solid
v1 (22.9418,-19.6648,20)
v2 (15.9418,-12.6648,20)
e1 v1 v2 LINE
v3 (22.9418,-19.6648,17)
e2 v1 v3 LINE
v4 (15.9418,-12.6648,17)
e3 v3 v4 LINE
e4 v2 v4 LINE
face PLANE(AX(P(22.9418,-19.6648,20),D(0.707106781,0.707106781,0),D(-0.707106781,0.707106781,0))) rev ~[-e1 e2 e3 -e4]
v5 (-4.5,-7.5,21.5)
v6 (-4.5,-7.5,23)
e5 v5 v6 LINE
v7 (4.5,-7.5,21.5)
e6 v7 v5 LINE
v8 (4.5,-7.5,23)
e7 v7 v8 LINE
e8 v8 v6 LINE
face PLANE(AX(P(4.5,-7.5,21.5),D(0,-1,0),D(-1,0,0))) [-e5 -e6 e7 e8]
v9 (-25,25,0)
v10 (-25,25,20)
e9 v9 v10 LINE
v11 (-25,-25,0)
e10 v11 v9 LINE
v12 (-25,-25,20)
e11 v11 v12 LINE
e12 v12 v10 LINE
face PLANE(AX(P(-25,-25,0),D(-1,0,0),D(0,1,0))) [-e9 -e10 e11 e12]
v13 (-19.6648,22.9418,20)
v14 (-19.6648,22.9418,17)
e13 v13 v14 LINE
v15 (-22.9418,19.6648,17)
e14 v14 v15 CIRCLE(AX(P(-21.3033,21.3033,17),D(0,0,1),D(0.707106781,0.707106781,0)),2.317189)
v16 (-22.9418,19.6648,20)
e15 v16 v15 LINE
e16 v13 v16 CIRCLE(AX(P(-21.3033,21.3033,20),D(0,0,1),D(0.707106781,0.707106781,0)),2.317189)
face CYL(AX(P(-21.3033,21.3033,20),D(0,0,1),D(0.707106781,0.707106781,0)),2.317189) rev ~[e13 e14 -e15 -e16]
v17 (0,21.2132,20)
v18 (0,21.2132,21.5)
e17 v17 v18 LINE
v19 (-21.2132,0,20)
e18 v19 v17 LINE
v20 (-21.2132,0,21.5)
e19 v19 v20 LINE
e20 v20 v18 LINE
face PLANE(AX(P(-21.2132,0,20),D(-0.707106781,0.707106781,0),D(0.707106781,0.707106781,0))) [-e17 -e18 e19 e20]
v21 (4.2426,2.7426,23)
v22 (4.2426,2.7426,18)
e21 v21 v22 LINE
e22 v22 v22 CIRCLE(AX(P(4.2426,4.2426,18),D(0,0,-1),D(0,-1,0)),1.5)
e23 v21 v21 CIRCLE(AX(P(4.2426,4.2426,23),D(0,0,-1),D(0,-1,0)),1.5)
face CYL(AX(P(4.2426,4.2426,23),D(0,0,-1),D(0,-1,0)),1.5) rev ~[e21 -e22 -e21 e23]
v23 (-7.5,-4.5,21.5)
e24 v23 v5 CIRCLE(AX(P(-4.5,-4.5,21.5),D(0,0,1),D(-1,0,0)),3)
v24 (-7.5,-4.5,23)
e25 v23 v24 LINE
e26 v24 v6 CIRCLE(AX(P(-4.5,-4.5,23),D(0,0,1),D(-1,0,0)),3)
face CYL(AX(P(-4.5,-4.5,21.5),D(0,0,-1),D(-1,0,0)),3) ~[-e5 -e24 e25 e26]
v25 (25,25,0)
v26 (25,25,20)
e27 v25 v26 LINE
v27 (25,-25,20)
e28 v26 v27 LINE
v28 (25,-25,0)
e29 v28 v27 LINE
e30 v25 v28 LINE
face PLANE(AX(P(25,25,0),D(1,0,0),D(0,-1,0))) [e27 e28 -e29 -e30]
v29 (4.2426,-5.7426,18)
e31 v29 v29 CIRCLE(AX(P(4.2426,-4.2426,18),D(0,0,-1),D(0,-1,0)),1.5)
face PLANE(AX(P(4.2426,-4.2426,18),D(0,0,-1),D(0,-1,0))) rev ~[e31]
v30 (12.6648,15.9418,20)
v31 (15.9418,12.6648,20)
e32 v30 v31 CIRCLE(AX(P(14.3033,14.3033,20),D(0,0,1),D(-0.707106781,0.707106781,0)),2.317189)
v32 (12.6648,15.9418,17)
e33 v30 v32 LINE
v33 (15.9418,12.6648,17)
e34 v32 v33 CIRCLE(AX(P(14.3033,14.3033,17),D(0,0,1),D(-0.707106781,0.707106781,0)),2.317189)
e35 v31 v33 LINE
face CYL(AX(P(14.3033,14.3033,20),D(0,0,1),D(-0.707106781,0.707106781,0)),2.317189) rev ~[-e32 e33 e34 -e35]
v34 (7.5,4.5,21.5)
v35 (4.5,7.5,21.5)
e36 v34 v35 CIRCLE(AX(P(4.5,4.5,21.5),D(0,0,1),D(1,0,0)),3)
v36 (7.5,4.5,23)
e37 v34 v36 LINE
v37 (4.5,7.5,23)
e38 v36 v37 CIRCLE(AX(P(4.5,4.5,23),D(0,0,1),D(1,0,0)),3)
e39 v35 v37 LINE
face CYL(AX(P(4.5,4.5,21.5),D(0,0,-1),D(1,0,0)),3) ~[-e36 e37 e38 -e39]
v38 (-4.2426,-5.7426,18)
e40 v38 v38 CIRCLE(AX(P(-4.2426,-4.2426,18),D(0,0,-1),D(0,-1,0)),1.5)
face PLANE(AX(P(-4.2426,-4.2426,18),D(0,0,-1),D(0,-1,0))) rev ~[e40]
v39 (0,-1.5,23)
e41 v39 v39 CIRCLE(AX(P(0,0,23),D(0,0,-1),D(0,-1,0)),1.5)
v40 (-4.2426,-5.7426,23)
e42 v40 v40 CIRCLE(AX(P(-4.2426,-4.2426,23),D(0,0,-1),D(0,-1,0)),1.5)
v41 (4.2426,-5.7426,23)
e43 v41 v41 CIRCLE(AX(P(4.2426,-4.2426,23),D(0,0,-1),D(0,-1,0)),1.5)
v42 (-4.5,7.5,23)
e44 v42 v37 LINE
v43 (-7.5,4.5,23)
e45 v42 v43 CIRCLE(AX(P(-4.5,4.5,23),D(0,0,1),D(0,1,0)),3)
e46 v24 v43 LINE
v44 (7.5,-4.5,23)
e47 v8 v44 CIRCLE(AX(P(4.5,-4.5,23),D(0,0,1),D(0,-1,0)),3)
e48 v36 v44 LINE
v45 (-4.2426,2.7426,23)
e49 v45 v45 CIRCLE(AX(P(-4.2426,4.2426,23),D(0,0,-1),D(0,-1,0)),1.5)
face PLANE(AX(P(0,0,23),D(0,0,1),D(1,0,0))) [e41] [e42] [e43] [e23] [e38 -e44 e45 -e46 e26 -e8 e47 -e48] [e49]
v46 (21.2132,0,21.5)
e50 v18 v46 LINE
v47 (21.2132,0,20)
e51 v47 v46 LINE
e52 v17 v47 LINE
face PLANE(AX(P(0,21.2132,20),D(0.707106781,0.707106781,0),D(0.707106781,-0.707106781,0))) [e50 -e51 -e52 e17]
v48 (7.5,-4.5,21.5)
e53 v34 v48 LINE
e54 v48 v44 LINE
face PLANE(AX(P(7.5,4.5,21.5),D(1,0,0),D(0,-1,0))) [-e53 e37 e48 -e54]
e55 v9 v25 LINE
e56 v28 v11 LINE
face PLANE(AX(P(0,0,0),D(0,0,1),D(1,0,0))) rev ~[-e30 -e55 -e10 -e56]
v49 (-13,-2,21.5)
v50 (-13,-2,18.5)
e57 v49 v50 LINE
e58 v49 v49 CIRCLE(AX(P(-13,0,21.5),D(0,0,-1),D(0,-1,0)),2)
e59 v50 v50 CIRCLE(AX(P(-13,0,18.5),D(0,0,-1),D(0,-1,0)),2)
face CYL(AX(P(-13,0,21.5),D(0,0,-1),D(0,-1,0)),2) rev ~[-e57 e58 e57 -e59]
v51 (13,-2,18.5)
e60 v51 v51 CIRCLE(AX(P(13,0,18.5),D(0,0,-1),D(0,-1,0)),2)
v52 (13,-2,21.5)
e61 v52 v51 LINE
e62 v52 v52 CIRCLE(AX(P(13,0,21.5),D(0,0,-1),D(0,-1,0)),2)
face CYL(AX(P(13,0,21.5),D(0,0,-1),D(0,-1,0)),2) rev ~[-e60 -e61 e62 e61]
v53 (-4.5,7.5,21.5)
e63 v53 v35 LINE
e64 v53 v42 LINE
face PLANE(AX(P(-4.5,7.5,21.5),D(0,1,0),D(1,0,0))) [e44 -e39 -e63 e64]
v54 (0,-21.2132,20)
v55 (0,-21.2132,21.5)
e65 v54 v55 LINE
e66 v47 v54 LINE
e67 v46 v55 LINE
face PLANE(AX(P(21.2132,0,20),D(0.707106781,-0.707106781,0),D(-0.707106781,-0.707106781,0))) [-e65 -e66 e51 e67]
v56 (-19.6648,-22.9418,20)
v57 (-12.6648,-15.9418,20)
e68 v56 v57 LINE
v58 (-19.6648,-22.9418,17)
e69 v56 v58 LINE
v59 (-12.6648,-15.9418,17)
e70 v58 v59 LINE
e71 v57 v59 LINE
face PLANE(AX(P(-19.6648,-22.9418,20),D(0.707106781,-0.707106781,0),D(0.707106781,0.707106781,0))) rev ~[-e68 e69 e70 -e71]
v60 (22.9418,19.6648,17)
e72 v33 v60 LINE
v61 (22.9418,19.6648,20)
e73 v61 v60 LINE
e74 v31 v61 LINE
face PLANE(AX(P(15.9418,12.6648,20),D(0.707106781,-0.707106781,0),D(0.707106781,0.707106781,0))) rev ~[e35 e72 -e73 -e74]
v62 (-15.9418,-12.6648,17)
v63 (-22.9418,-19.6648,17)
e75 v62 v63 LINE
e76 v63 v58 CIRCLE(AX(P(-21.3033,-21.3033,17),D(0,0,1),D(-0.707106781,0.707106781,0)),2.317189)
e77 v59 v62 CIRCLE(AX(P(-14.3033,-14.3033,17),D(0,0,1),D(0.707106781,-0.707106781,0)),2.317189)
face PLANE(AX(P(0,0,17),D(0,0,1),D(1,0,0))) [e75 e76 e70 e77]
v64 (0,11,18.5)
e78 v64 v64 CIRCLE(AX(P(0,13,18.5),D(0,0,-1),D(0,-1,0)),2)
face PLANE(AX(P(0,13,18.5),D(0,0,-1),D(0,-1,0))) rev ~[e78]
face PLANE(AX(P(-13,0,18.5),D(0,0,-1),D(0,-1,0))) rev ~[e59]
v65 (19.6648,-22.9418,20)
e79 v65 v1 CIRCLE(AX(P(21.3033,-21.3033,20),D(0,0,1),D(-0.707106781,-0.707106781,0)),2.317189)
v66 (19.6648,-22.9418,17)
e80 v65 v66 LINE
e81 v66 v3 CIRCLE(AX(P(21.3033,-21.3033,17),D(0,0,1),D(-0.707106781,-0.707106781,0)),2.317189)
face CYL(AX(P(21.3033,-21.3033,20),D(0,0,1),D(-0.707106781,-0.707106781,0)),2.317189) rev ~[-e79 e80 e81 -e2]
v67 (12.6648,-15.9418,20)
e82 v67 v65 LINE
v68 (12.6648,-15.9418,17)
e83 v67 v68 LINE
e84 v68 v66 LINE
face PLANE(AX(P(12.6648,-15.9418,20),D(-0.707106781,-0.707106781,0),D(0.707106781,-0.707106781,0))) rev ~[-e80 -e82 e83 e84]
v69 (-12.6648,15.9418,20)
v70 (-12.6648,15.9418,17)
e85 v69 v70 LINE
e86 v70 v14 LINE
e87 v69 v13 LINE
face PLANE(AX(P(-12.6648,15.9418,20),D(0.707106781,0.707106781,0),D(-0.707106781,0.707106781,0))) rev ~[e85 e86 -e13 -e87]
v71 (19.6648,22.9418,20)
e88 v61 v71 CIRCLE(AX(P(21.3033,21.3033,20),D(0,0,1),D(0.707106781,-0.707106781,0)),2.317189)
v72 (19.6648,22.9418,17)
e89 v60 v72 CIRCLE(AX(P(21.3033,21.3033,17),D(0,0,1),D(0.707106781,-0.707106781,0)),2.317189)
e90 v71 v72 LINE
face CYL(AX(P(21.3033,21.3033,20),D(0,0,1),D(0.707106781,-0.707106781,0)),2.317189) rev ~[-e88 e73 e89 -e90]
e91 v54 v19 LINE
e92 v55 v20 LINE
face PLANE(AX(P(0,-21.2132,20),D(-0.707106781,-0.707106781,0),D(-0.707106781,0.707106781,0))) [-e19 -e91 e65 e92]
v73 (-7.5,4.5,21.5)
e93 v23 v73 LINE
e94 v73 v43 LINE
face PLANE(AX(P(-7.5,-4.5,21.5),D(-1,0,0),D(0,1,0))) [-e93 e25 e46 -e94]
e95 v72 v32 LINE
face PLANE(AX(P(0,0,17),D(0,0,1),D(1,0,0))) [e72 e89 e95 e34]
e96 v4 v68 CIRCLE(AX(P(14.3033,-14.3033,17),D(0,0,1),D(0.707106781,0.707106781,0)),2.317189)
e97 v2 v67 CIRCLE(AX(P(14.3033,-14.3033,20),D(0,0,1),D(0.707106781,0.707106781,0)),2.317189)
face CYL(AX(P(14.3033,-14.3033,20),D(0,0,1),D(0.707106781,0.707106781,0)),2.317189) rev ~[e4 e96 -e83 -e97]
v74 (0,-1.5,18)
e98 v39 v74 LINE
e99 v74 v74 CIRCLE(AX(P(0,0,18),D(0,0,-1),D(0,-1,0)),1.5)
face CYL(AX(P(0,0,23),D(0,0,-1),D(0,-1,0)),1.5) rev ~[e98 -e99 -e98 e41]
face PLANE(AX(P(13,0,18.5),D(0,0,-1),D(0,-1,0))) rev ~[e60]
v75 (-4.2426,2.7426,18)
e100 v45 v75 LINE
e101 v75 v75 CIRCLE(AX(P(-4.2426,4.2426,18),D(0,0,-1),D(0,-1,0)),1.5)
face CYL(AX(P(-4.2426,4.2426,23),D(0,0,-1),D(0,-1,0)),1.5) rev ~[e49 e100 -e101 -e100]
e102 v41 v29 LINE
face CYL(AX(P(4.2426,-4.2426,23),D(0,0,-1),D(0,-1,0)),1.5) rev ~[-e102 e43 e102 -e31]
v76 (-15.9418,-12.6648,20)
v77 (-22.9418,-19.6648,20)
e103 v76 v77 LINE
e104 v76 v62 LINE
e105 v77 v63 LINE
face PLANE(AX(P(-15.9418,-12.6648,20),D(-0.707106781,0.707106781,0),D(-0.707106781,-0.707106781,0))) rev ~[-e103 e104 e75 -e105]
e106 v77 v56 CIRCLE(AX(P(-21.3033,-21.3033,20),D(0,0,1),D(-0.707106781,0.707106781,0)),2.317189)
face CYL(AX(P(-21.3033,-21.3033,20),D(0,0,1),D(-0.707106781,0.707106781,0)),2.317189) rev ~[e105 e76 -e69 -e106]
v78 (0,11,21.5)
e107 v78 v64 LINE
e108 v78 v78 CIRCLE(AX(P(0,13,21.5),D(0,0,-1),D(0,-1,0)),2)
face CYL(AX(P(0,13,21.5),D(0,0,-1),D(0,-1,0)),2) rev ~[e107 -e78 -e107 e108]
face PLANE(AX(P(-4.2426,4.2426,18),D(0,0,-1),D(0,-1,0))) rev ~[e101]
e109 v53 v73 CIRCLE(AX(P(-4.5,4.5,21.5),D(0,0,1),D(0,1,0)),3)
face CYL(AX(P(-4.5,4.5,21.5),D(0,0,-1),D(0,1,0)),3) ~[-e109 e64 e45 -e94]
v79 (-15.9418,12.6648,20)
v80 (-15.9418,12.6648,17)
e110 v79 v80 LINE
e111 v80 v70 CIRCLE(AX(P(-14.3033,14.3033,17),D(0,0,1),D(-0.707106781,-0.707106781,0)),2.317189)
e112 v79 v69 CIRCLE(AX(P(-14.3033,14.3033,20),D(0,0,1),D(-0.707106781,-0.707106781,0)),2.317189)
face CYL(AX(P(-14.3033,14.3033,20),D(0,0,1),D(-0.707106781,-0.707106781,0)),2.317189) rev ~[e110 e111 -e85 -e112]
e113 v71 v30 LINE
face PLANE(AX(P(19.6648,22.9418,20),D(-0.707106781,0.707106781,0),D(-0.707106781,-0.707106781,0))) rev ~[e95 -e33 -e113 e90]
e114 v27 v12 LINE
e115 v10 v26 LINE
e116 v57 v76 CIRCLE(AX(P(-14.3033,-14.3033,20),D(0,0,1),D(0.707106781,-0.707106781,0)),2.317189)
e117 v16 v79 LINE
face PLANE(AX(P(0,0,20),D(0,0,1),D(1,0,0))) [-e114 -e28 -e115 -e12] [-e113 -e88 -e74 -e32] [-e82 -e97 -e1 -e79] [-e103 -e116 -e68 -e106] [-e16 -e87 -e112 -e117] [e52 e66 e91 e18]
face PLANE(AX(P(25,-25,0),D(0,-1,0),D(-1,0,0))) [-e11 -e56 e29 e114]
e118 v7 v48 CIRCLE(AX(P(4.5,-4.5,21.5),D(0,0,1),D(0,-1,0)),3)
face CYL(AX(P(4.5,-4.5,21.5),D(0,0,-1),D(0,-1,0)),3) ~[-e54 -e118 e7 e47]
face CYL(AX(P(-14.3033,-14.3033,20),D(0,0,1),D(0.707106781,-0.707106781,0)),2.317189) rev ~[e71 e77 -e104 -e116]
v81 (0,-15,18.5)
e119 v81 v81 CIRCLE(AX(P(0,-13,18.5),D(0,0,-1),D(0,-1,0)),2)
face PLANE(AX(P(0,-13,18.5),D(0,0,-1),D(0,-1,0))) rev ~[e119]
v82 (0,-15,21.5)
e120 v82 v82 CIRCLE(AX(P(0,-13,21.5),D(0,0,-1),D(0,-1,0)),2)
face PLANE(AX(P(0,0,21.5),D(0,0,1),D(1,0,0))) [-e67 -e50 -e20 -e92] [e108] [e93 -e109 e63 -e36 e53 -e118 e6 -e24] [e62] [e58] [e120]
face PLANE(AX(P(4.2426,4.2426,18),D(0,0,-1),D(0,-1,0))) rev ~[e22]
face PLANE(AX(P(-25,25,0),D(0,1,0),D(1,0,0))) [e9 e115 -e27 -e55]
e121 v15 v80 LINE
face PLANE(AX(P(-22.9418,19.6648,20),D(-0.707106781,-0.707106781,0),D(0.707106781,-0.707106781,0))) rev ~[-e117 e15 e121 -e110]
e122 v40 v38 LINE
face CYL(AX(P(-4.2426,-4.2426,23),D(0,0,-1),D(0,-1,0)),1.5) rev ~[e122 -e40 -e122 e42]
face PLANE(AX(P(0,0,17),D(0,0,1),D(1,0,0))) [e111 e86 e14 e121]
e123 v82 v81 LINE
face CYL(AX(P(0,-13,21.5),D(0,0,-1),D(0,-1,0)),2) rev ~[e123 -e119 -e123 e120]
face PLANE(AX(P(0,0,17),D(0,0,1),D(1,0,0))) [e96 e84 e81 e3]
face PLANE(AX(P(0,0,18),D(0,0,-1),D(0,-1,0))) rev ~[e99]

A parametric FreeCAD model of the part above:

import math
import FreeCAD as App
import Part
import Sketcher
Q = App.Units.Quantity


def add_polygon(sketch, points):
    """Adds a closed chain of lines whose ends are joined by coincident constraints."""
    first, n = sketch.GeometryCount, len(points)
    for a, b in zip(points, points[1:] + points[:1]):
        sketch.addGeometry(Part.LineSegment(App.Vector(*a, 0), App.Vector(*b, 0)), False)
    for i in range(n):
        sketch.addConstraint(Sketcher.Constraint("Coincident", first + i, 2, first + (i + 1) % n, 1))

doc = App.newDocument("Part")
body = doc.addObject("PartDesign::Body", "Body")

# Sketch on XY plane
sketch1 = body.newObject("Sketcher::SketchObject", "Sketch")
sketch1.AttachmentSupport = (doc.getObject("XY_Plane"), [""])
sketch1.MapMode = "FlatFace"
add_polygon(sketch1, [(25, 25), (-25, 25), (-25, -25), (25, -25)])  # lines 0-3
sketch1.addConstraint([
    Sketcher.Constraint("Horizontal", 0),
    Sketcher.Constraint("Vertical", 1),
    Sketcher.Constraint("Horizontal", 2),
    Sketcher.Constraint("Vertical", 3),
    Sketcher.Constraint("Symmetric", 0, 2, 2, 2, -1, 1),
    Sketcher.Constraint("Equal", 2, 1),
    Sketcher.Constraint("DistanceX", 0, 2, 0, 1, Q("50 mm")),
])
pad1 = body.newObject("PartDesign::Pad", "Pad")
pad1.Profile = sketch1
pad1.Length = 20

# Sketch on XY plane
sketch2 = body.newObject("Sketcher::SketchObject", "Sketch001")
sketch2.AttachmentSupport = (doc.getObject("XY_Plane"), [""])
sketch2.MapMode = "FlatFace"
sketch2.AttachmentOffset = App.Placement(App.Vector(0, 0, 20), App.Rotation())
add_polygon(sketch2, [(0, -21), (21, 0), (0, 21), (-21, 0)])  # lines 0-3
sketch2.addConstraint([
    Sketcher.Constraint("Symmetric", 0, 2, 2, 2, -1, 1),
    Sketcher.Constraint("Symmetric", 1, 2, 3, 2, -1, 1),
    Sketcher.Constraint("PointOnObject", 0, 2, -1),
    Sketcher.Constraint("PointOnObject", 1, 2, -2),
    Sketcher.Constraint("Perpendicular", 0, 1),
    Sketcher.Constraint("Distance", 0, Q("30 mm")),
])
pad2 = body.newObject("PartDesign::Pad", "Pad001")
pad2.Profile = sketch2
pad2.Length = 1.5

# Sketch on XY plane
sketch3 = body.newObject("Sketcher::SketchObject", "Sketch002")
sketch3.AttachmentSupport = (doc.getObject("XY_Plane"), [""])
sketch3.MapMode = "FlatFace"
sketch3.AttachmentOffset = App.Placement(App.Vector(0, 0, 21.5), App.Rotation())
sketch3.addGeometry([
    Part.Circle(App.Vector(-13, 0, 0), App.Vector(0, 0, 1), 2),
    Part.Circle(App.Vector(0, -13, 0), App.Vector(0, 0, 1), 2),
    Part.Circle(App.Vector(0, 13, 0), App.Vector(0, 0, 1), 2),
    Part.Circle(App.Vector(13, 0, 0), App.Vector(0, 0, 1), 2),
], False)
sketch3.addConstraint([
    Sketcher.Constraint("Equal", 0, 1),
    Sketcher.Constraint("Equal", 1, 2),
    Sketcher.Constraint("Equal", 2, 3),
    Sketcher.Constraint("Symmetric", 1, 3, 2, 3, -1, 1),
    Sketcher.Constraint("Symmetric", 0, 3, 3, 3, -1, 1),
    Sketcher.Constraint("PointOnObject", 0, 3, -1),
    Sketcher.Constraint("PointOnObject", 1, 3, -2),
    Sketcher.Constraint("Diameter", 0, Q("4 mm")),
    Sketcher.Constraint("DistanceX", 0, 3, -1, 1, Q("13 mm")),
    Sketcher.Constraint("DistanceY", 1, 3, -1, 1, Q("13 mm")),
])
doc.recompute()
hole = body.newObject("PartDesign::Hole", "Hole")
hole.Profile = sketch3
hole.ThreadType = "None"
hole.Diameter = 4
hole.DepthType = "Dimension"
hole.Depth = 3
hole.DrillPoint = "Flat"

# Sketch on XY plane
sketch4 = body.newObject("Sketcher::SketchObject", "Sketch003")
sketch4.AttachmentSupport = (doc.getObject("XY_Plane"), [""])
sketch4.MapMode = "FlatFace"
sketch4.AttachmentOffset = App.Placement(App.Vector(0, 0, 21.5), App.Rotation())
sketch4.addGeometry([
    Part.LineSegment(App.Vector(-4.5, -7.5, 0), App.Vector(4.5, -7.5, 0)),  # 0
    Part.ArcOfCircle(Part.Circle(App.Vector(4.5, -4.5, 0), App.Vector(0, 0, 1), 3), math.radians(-90), math.radians(0)),  # 1
    Part.LineSegment(App.Vector(7.5, -4.5, 0), App.Vector(7.5, 4.5, 0)),  # 2
    Part.ArcOfCircle(Part.Circle(App.Vector(4.5, 4.5, 0), App.Vector(0, 0, 1), 3), math.radians(0), math.radians(90)),  # 3
    Part.LineSegment(App.Vector(4.5, 7.5, 0), App.Vector(-4.5, 7.5, 0)),  # 4
    Part.ArcOfCircle(Part.Circle(App.Vector(-4.5, 4.5, 0), App.Vector(0, 0, 1), 3), math.radians(90), math.radians(180)),  # 5
    Part.LineSegment(App.Vector(-7.5, 4.5, 0), App.Vector(-7.5, -4.5, 0)),  # 6
    Part.ArcOfCircle(Part.Circle(App.Vector(-4.5, -4.5, 0), App.Vector(0, 0, 1), 3), math.radians(180), math.radians(270)),  # 7
], False)
sketch4.addConstraint([
    Sketcher.Constraint("Tangent", 0, 2, 1, 1),
    Sketcher.Constraint("Tangent", 1, 2, 2, 1),
    Sketcher.Constraint("Tangent", 2, 2, 3, 1),
    Sketcher.Constraint("Tangent", 3, 2, 4, 1),
    Sketcher.Constraint("Tangent", 4, 2, 5, 1),
    Sketcher.Constraint("Tangent", 5, 2, 6, 1),
    Sketcher.Constraint("Tangent", 6, 2, 7, 1),
    Sketcher.Constraint("Tangent", 7, 2, 0, 1),
    Sketcher.Constraint("Horizontal", 0),
    Sketcher.Constraint("Vertical", 2),
    Sketcher.Constraint("Horizontal", 4),
    Sketcher.Constraint("Vertical", 6),
    Sketcher.Constraint("Equal", 1, 3),
    Sketcher.Constraint("Equal", 3, 5),
    Sketcher.Constraint("Equal", 5, 7),
    Sketcher.Constraint("Symmetric", 1, 3, 5, 3, -1, 1),
    Sketcher.Constraint("Equal", 4, 2),
    Sketcher.Constraint("Radius", 1, Q("3 mm")),
    Sketcher.Constraint("DistanceX", 0, 1, 0, 2, Q("9 mm")),
])
pad3 = body.newObject("PartDesign::Pad", "Pad002")
pad3.Profile = sketch4
pad3.Length = 1.5

# Sketch on XY plane
sketch5 = body.newObject("Sketcher::SketchObject", "Sketch004")
sketch5.AttachmentSupport = (doc.getObject("XY_Plane"), [""])
sketch5.MapMode = "FlatFace"
sketch5.AttachmentOffset = App.Placement(App.Vector(0, 0, 23), App.Rotation())
sketch5.addGeometry([
    Part.Circle(App.Vector(-4.2, -4.2, 0), App.Vector(0, 0, 1), 1.5),  # 0
    Part.Circle(App.Vector(4.2, -4.2, 0), App.Vector(0, 0, 1), 1.5),  # 1
    Part.Circle(App.Vector(-4.2, 4.2, 0), App.Vector(0, 0, 1), 1.5),  # 2
    Part.Circle(App.Vector(4.2, 4.2, 0), App.Vector(0, 0, 1), 1.5),  # 3
    Part.Circle(App.Vector(0, 0, 0), App.Vector(0, 0, 1), 1.5),  # 4
], False)
sketch5.addConstraint([
    Sketcher.Constraint("Coincident", 4, 3, -1, 1),
    Sketcher.Constraint("Equal", 0, 1),
    Sketcher.Constraint("Equal", 1, 2),
    Sketcher.Constraint("Equal", 2, 3),
    Sketcher.Constraint("Equal", 3, 4),
    Sketcher.Constraint("Symmetric", 1, 3, 2, 3, -1, 1),
    Sketcher.Constraint("Symmetric", 0, 3, 3, 3, -1, 1),
    Sketcher.Constraint("Symmetric", 0, 3, 1, 3, -2),
    Sketcher.Constraint("Diameter", 0, Q("3 mm")),
    Sketcher.Constraint("DistanceX", 0, 3, -1, 1, Q("4.2426 mm")),
    Sketcher.Constraint("DistanceY", 0, 3, -1, 1, Q("4.2426 mm")),
])
doc.recompute()
hole2 = body.newObject("PartDesign::Hole", "Hole001")
hole2.Profile = sketch5
hole2.ThreadType = "None"
hole2.Diameter = 3
hole2.DepthType = "Dimension"
hole2.Depth = 5
hole2.DrillPoint = "Flat"

# Sketch on XY plane
sketch6 = body.newObject("Sketcher::SketchObject", "Sketch005")
sketch6.AttachmentSupport = (doc.getObject("XY_Plane"), [""])
sketch6.MapMode = "FlatFace"
sketch6.AttachmentOffset = App.Placement(App.Vector(0, 0, 20), App.Rotation())
sketch6.addGeometry([
    Part.ArcOfCircle(Part.Circle(App.Vector(-21.3, -21.3, 0), App.Vector(0, 0, 1), 2.3), math.radians(135), math.radians(315)),  # 0
    Part.LineSegment(App.Vector(-19.7, -22.9, 0), App.Vector(-12.7, -15.9, 0)),  # 1
    Part.ArcOfCircle(Part.Circle(App.Vector(-14.3, -14.3, 0), App.Vector(0, 0, 1), 2.3), math.radians(-45), math.radians(135)),  # 2
    Part.LineSegment(App.Vector(-15.9, -12.7, 0), App.Vector(-22.9, -19.7, 0)),  # 3
    Part.ArcOfCircle(Part.Circle(App.Vector(14.3, -14.3, 0), App.Vector(0, 0, 1), 2.3), math.radians(45), math.radians(225)),  # 4
    Part.LineSegment(App.Vector(12.7, -15.9, 0), App.Vector(19.7, -22.9, 0)),  # 5
    Part.ArcOfCircle(Part.Circle(App.Vector(21.3, -21.3, 0), App.Vector(0, 0, 1), 2.3), math.radians(-135), math.radians(45)),  # 6
    Part.LineSegment(App.Vector(22.9, -19.7, 0), App.Vector(15.9, -12.7, 0)),  # 7
    Part.ArcOfCircle(Part.Circle(App.Vector(14.3, 14.3, 0), App.Vector(0, 0, 1), 2.3), math.radians(135), math.radians(315)),  # 8
    Part.LineSegment(App.Vector(15.9, 12.7, 0), App.Vector(22.9, 19.7, 0)),  # 9
    Part.ArcOfCircle(Part.Circle(App.Vector(21.3, 21.3, 0), App.Vector(0, 0, 1), 2.3), math.radians(-45), math.radians(135)),  # 10
    Part.LineSegment(App.Vector(19.7, 22.9, 0), App.Vector(12.7, 15.9, 0)),  # 11
    Part.ArcOfCircle(Part.Circle(App.Vector(-14.3, 14.3, 0), App.Vector(0, 0, 1), 2.3), math.radians(-135), math.radians(45)),  # 12
    Part.LineSegment(App.Vector(-12.7, 15.9, 0), App.Vector(-19.7, 22.9, 0)),  # 13
    Part.ArcOfCircle(Part.Circle(App.Vector(-21.3, 21.3, 0), App.Vector(0, 0, 1), 2.3), math.radians(45), math.radians(225)),  # 14
    Part.LineSegment(App.Vector(-22.9, 19.7, 0), App.Vector(-15.9, 12.7, 0)),  # 15
], False)
sketch6.addConstraint([
    Sketcher.Constraint("Tangent", 0, 2, 1, 1),
    Sketcher.Constraint("Tangent", 1, 2, 2, 1),
    Sketcher.Constraint("Tangent", 2, 2, 3, 1),
    Sketcher.Constraint("Tangent", 3, 2, 0, 1),
    Sketcher.Constraint("Tangent", 4, 2, 5, 1),
    Sketcher.Constraint("Tangent", 5, 2, 6, 1),
    Sketcher.Constraint("Tangent", 6, 2, 7, 1),
    Sketcher.Constraint("Tangent", 7, 2, 4, 1),
    Sketcher.Constraint("Tangent", 8, 2, 9, 1),
    Sketcher.Constraint("Tangent", 9, 2, 10, 1),
    Sketcher.Constraint("Tangent", 10, 2, 11, 1),
    Sketcher.Constraint("Tangent", 11, 2, 8, 1),
    Sketcher.Constraint("Tangent", 12, 2, 13, 1),
    Sketcher.Constraint("Tangent", 13, 2, 14, 1),
    Sketcher.Constraint("Tangent", 14, 2, 15, 1),
    Sketcher.Constraint("Tangent", 15, 2, 12, 1),
    Sketcher.Constraint("Equal", 0, 2),
    Sketcher.Constraint("Equal", 2, 4),
    Sketcher.Constraint("Equal", 4, 6),
    Sketcher.Constraint("Equal", 6, 8),
    Sketcher.Constraint("Equal", 8, 10),
    Sketcher.Constraint("Equal", 10, 12),
    Sketcher.Constraint("Equal", 12, 14),
    Sketcher.Constraint("Symmetric", 2, 3, 8, 3, -1, 1),
    Sketcher.Constraint("Symmetric", 0, 3, 10, 3, -1, 1),
    Sketcher.Constraint("Symmetric", 4, 3, 12, 3, -1, 1),
    Sketcher.Constraint("Symmetric", 6, 3, 14, 3, -1, 1),
    Sketcher.Constraint("Symmetric", 2, 3, 4, 3, -2),
    Sketcher.Constraint("Symmetric", 0, 3, 6, 3, -2),
    Sketcher.Constraint("Perpendicular", 3, 5),
    Sketcher.Constraint("DistanceX", 0, 3, 2, 3, Q("7 mm")),
    Sketcher.Constraint("Radius", 0, Q("2.3172 mm")),
    Sketcher.Constraint("DistanceX", 0, 2, 4, 3, Q("33.968 mm")),
    Sketcher.Constraint("DistanceY", 0, 2, 12, 3, Q("37.245 mm")),
])
pocket1 = body.newObject("PartDesign::Pocket", "Pocket")
pocket1.Profile = sketch6
pocket1.Length = 3

doc.recompute()
